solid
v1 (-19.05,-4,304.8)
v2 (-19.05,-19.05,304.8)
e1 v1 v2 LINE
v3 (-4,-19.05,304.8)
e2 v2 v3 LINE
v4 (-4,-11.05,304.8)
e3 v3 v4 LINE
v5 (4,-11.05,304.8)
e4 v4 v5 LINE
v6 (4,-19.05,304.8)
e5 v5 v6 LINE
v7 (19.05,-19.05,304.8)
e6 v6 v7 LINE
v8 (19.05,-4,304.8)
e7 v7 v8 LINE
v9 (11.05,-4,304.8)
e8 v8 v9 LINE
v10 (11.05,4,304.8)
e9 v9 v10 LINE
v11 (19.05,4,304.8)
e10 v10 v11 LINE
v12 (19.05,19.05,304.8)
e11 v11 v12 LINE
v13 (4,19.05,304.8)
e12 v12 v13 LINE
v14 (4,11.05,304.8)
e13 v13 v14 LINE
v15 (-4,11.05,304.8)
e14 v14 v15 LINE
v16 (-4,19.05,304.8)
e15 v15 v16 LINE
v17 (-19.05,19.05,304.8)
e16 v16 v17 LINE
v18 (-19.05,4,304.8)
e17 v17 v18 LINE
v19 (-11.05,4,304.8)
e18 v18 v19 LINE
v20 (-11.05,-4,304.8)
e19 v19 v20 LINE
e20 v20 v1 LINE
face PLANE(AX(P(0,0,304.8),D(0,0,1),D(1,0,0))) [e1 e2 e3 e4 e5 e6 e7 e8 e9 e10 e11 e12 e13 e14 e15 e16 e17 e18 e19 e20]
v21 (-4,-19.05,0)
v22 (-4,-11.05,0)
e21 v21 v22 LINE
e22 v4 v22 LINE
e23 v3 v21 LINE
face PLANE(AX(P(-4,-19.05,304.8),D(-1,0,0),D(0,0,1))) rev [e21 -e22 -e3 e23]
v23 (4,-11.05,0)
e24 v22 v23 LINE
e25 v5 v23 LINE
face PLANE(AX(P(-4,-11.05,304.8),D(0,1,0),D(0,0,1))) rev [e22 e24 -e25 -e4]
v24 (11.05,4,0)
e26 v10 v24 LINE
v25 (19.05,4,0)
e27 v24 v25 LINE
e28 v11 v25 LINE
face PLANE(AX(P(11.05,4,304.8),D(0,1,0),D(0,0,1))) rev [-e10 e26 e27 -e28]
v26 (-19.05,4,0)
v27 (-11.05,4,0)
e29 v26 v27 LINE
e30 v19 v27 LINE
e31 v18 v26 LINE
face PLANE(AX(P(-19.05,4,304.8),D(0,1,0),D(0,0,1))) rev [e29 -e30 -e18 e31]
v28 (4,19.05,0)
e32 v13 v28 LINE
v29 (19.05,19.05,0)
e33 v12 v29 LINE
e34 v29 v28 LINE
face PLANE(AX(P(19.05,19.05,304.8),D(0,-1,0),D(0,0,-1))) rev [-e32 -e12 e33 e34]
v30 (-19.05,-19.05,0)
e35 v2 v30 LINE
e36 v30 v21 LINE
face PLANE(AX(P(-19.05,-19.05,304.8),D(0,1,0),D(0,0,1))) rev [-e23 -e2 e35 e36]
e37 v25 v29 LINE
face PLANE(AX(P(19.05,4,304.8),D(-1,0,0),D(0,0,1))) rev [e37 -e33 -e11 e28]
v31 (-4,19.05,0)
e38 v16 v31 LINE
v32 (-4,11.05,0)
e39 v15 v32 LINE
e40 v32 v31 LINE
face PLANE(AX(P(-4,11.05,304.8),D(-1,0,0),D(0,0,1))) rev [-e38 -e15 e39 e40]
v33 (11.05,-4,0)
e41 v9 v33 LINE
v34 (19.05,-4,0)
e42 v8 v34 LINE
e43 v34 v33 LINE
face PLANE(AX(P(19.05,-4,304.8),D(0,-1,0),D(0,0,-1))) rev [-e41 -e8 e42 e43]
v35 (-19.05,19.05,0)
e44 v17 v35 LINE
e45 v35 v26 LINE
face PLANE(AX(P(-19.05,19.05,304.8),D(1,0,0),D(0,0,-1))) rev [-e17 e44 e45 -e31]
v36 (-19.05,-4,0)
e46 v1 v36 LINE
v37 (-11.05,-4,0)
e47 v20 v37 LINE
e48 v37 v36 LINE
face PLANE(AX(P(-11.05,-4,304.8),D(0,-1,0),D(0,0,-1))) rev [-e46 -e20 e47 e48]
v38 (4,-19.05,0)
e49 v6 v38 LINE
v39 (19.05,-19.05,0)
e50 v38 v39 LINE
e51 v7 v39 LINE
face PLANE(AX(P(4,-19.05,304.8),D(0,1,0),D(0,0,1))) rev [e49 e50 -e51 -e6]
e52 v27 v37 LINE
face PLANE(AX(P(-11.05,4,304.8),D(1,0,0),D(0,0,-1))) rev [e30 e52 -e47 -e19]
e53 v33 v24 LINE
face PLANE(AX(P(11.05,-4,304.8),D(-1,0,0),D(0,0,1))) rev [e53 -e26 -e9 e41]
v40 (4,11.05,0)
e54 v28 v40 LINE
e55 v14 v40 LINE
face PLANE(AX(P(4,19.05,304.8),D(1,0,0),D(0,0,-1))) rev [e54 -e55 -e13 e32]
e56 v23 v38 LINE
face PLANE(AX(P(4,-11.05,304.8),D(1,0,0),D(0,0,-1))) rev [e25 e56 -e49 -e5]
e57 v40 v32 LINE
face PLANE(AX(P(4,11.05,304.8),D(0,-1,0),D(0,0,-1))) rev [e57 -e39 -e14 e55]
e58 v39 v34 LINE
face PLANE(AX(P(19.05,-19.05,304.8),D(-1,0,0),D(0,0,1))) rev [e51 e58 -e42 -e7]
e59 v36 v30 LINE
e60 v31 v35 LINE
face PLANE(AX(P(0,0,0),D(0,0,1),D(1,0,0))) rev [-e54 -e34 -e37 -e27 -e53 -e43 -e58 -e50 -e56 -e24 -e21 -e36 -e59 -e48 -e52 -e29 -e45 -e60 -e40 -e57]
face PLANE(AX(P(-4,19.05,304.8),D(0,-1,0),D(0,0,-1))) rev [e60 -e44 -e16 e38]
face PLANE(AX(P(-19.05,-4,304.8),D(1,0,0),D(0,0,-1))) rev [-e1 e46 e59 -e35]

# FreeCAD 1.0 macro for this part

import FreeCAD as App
import Part
import Sketcher

V = App.Vector

doc = App.newDocument("Part")
params = doc.addObject("Spreadsheet::Sheet", "Params")
for row, (alias, value) in enumerate([
    ("sketch1_width", "8 mm"),
    ("sketch1_width2", "15.05 mm"),
    ("pad1_length", "304.8 mm"),
], start=1):
    params.set(f"A{row}", alias)
    params.set(f"B{row}", "=" + value)
    params.setAlias(f"B{row}", alias)

body = doc.addObject("PartDesign::Body", "Body")

sketch1 = doc.addObject("Sketcher::SketchObject", "Sketch")
body.addObject(sketch1)
sketch1.AttachmentSupport = (doc.XY_Plane, [""])
sketch1.MapMode = "FlatFace"
sketch1.addGeometry([
    Part.LineSegment(V(-19, -19, 0), V(-4, -19, 0)),
    Part.LineSegment(V(-4, -19, 0), V(-4, -11, 0)),
    Part.LineSegment(V(-4, -11, 0), V(4, -11, 0)),
    Part.LineSegment(V(4, -11, 0), V(4, -19, 0)),
    Part.LineSegment(V(4, -19, 0), V(19, -19, 0)),
    Part.LineSegment(V(19, -19, 0), V(19, -4, 0)),
    Part.LineSegment(V(19, -4, 0), V(11, -4, 0)),
    Part.LineSegment(V(11, -4, 0), V(11, 4, 0)),
    Part.LineSegment(V(11, 4, 0), V(19, 4, 0)),
    Part.LineSegment(V(19, 4, 0), V(19, 19, 0)),
    Part.LineSegment(V(19, 19, 0), V(4, 19, 0)),
    Part.LineSegment(V(4, 19, 0), V(4, 11, 0)),
    Part.LineSegment(V(4, 11, 0), V(-4, 11, 0)),
    Part.LineSegment(V(-4, 11, 0), V(-4, 19, 0)),
    Part.LineSegment(V(-4, 19, 0), V(-19, 19, 0)),
    Part.LineSegment(V(-19, 19, 0), V(-19, 4, 0)),
    Part.LineSegment(V(-19, 4, 0), V(-11, 4, 0)),
    Part.LineSegment(V(-11, 4, 0), V(-11, -4, 0)),
    Part.LineSegment(V(-11, -4, 0), V(-19, -4, 0)),
    Part.LineSegment(V(-19, -4, 0), V(-19, -19, 0)),
], False)
sketch1.addConstraint([
    Sketcher.Constraint("Coincident", 0, 2, 1, 1),
    Sketcher.Constraint("Coincident", 1, 2, 2, 1),
    Sketcher.Constraint("Coincident", 2, 2, 3, 1),
    Sketcher.Constraint("Coincident", 3, 2, 4, 1),
    Sketcher.Constraint("Coincident", 4, 2, 5, 1),
    Sketcher.Constraint("Coincident", 5, 2, 6, 1),
    Sketcher.Constraint("Coincident", 6, 2, 7, 1),
    Sketcher.Constraint("Coincident", 7, 2, 8, 1),
    Sketcher.Constraint("Coincident", 8, 2, 9, 1),
    Sketcher.Constraint("Coincident", 9, 2, 10, 1),
    Sketcher.Constraint("Coincident", 10, 2, 11, 1),
    Sketcher.Constraint("Coincident", 11, 2, 12, 1),
    Sketcher.Constraint("Coincident", 12, 2, 13, 1),
    Sketcher.Constraint("Coincident", 13, 2, 14, 1),
    Sketcher.Constraint("Coincident", 14, 2, 15, 1),
    Sketcher.Constraint("Coincident", 15, 2, 16, 1),
    Sketcher.Constraint("Coincident", 16, 2, 17, 1),
    Sketcher.Constraint("Coincident", 17, 2, 18, 1),
    Sketcher.Constraint("Coincident", 18, 2, 19, 1),
    Sketcher.Constraint("Coincident", 19, 2, 0, 1),
    Sketcher.Constraint("Horizontal", 0),
    Sketcher.Constraint("Vertical", 1),
    Sketcher.Constraint("Horizontal", 2),
    Sketcher.Constraint("Vertical", 3),
    Sketcher.Constraint("Horizontal", 4),
    Sketcher.Constraint("Vertical", 5),
    Sketcher.Constraint("Horizontal", 6),
    Sketcher.Constraint("Vertical", 7),
    Sketcher.Constraint("Horizontal", 8),
    Sketcher.Constraint("Vertical", 9),
    Sketcher.Constraint("Horizontal", 10),
    Sketcher.Constraint("Vertical", 11),
    Sketcher.Constraint("Horizontal", 12),
    Sketcher.Constraint("Vertical", 13),
    Sketcher.Constraint("Horizontal", 14),
    Sketcher.Constraint("Vertical", 15),
    Sketcher.Constraint("Horizontal", 16),
    Sketcher.Constraint("Vertical", 17),
    Sketcher.Constraint("Horizontal", 18),
    Sketcher.Constraint("Vertical", 19),
    Sketcher.Constraint("Symmetric", 0, 2, 10, 2, -1, 1),
    Sketcher.Constraint("Symmetric", 2, 2, 12, 2, -1, 1),
    Sketcher.Constraint("Symmetric", 4, 2, 14, 2, -1, 1),
    Sketcher.Constraint("Symmetric", 6, 2, 16, 2, -1, 1),
    Sketcher.Constraint("Symmetric", 8, 2, 18, 2, -1, 1),
    Sketcher.Constraint("Symmetric", 0, 2, 3, 2, -2),
    Sketcher.Constraint("Symmetric", 8, 2, 15, 2, -2),
    Sketcher.Constraint("Equal", 2, 6),
    Sketcher.Constraint("Equal", 18, 1),
    Sketcher.Constraint("Equal", 14, 5),
    Sketcher.Constraint("Equal", 3, 7),
    Sketcher.Constraint("DistanceX", 2, 1, 2, 2, 8.0),
    Sketcher.Constraint("DistanceX", 0, 1, 0, 2, 15.05),
])
sketch1.setExpression("Constraints[51]", "Params.sketch1_width")
sketch1.setExpression("Constraints[52]", "Params.sketch1_width2")
pad1 = doc.addObject("PartDesign::Pad", "Pad")
body.addObject(pad1)
pad1.Profile = sketch1
pad1.setExpression("Length", "Params.pad1_length")

doc.recompute()
